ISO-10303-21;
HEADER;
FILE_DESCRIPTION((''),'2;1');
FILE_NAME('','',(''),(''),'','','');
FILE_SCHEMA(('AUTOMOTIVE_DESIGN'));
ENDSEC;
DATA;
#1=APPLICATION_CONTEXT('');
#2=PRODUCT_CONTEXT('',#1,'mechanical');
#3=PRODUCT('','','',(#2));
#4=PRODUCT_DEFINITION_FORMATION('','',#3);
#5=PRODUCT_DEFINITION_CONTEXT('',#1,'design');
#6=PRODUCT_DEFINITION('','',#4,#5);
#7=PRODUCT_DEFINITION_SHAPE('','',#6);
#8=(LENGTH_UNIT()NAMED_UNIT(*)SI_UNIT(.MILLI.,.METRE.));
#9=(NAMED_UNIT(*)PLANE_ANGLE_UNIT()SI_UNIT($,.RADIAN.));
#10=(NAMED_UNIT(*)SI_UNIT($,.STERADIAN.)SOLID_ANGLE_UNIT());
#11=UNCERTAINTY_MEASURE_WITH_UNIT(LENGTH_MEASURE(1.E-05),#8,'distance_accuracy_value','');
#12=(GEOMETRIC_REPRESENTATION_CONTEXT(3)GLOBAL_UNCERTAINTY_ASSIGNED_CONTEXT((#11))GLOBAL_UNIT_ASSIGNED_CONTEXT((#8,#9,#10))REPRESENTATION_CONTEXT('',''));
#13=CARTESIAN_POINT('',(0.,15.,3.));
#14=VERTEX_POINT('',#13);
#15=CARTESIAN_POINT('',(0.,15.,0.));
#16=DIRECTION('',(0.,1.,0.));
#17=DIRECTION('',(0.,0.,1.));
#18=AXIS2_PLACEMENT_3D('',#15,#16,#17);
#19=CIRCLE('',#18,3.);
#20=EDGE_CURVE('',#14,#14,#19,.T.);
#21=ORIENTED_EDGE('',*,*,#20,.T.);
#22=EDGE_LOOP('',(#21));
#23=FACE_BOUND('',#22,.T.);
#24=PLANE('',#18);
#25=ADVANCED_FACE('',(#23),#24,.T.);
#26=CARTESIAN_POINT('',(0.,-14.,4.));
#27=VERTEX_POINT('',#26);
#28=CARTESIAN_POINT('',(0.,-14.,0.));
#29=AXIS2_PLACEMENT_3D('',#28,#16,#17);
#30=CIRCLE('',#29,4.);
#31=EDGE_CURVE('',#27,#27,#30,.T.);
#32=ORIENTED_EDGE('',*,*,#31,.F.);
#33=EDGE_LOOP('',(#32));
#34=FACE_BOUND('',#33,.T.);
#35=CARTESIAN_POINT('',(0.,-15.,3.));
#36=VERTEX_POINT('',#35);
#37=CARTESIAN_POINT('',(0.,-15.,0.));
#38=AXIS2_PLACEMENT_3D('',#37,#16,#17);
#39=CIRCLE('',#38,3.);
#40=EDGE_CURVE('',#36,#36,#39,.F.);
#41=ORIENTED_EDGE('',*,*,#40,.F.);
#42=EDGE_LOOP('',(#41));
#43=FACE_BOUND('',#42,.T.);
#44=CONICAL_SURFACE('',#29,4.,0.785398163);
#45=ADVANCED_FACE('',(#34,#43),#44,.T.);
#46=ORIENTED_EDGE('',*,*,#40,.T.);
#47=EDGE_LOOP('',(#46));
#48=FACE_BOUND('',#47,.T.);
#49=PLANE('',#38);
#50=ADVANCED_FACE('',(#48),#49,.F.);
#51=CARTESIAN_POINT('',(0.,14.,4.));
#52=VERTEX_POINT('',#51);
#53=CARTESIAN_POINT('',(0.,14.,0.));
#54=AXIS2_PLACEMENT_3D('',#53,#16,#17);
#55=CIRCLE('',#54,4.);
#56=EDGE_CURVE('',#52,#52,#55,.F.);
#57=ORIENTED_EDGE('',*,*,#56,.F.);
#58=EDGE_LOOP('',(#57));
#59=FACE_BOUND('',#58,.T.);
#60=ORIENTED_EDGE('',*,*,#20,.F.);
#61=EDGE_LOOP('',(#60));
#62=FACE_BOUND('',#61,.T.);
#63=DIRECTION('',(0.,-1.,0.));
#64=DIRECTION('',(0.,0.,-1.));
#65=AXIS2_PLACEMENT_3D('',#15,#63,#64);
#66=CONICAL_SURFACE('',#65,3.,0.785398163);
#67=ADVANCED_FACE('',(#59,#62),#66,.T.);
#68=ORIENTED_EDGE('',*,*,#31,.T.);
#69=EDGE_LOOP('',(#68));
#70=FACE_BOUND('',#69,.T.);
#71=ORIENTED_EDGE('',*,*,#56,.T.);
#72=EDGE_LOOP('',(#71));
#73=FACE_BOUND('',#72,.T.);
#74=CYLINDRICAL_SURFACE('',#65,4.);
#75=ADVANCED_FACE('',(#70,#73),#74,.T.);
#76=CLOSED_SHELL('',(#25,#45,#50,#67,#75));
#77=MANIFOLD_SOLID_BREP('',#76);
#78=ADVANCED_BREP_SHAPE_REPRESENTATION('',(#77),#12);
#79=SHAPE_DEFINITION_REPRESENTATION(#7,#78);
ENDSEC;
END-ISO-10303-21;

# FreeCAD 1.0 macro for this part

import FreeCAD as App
import Part
import Sketcher
from FreeCAD import Vector


def edges_at(feature, points):
    """Names of the edges that pass closest to the given points."""
    edges = feature.Shape.Edges
    near = lambda p: min(range(len(edges)), key=lambda i: edges[i].distToShape(Part.Vertex(*p))[0])
    return sorted({f"Edge{near(p) + 1}" for p in points})

doc = App.newDocument("Part")
body = doc.addObject("PartDesign::Body", "Body")

# Sketch on XZ plane
sketch1 = doc.addObject("Sketcher::SketchObject", "Sketch")
body.addObject(sketch1)
sketch1.AttachmentSupport = (doc.XZ_Plane, [""])
sketch1.MapMode = "FlatFace"
sketch1.addGeometry(Part.Circle(Vector(0, 0, 0), Vector(0, 0, 1), 4), False)
sketch1.addConstraint(Sketcher.Constraint("Coincident", 0, 3, -1, 1))
sketch1.addConstraint(Sketcher.Constraint("Diameter", 0, 8.0))
pad1 = doc.addObject("PartDesign::Pad", "Pad")
body.addObject(pad1)
pad1.Profile = sketch1
pad1.Length = 30
pad1.Midplane = True
doc.recompute()

chamfer = doc.addObject("PartDesign::Chamfer", "Chamfer")
body.addObject(chamfer)
chamfer.Base = (pad1, edges_at(pad1, [(-4, -15, 0), (-4, 15, 0)]))
chamfer.Size = 1

doc.recompute()
